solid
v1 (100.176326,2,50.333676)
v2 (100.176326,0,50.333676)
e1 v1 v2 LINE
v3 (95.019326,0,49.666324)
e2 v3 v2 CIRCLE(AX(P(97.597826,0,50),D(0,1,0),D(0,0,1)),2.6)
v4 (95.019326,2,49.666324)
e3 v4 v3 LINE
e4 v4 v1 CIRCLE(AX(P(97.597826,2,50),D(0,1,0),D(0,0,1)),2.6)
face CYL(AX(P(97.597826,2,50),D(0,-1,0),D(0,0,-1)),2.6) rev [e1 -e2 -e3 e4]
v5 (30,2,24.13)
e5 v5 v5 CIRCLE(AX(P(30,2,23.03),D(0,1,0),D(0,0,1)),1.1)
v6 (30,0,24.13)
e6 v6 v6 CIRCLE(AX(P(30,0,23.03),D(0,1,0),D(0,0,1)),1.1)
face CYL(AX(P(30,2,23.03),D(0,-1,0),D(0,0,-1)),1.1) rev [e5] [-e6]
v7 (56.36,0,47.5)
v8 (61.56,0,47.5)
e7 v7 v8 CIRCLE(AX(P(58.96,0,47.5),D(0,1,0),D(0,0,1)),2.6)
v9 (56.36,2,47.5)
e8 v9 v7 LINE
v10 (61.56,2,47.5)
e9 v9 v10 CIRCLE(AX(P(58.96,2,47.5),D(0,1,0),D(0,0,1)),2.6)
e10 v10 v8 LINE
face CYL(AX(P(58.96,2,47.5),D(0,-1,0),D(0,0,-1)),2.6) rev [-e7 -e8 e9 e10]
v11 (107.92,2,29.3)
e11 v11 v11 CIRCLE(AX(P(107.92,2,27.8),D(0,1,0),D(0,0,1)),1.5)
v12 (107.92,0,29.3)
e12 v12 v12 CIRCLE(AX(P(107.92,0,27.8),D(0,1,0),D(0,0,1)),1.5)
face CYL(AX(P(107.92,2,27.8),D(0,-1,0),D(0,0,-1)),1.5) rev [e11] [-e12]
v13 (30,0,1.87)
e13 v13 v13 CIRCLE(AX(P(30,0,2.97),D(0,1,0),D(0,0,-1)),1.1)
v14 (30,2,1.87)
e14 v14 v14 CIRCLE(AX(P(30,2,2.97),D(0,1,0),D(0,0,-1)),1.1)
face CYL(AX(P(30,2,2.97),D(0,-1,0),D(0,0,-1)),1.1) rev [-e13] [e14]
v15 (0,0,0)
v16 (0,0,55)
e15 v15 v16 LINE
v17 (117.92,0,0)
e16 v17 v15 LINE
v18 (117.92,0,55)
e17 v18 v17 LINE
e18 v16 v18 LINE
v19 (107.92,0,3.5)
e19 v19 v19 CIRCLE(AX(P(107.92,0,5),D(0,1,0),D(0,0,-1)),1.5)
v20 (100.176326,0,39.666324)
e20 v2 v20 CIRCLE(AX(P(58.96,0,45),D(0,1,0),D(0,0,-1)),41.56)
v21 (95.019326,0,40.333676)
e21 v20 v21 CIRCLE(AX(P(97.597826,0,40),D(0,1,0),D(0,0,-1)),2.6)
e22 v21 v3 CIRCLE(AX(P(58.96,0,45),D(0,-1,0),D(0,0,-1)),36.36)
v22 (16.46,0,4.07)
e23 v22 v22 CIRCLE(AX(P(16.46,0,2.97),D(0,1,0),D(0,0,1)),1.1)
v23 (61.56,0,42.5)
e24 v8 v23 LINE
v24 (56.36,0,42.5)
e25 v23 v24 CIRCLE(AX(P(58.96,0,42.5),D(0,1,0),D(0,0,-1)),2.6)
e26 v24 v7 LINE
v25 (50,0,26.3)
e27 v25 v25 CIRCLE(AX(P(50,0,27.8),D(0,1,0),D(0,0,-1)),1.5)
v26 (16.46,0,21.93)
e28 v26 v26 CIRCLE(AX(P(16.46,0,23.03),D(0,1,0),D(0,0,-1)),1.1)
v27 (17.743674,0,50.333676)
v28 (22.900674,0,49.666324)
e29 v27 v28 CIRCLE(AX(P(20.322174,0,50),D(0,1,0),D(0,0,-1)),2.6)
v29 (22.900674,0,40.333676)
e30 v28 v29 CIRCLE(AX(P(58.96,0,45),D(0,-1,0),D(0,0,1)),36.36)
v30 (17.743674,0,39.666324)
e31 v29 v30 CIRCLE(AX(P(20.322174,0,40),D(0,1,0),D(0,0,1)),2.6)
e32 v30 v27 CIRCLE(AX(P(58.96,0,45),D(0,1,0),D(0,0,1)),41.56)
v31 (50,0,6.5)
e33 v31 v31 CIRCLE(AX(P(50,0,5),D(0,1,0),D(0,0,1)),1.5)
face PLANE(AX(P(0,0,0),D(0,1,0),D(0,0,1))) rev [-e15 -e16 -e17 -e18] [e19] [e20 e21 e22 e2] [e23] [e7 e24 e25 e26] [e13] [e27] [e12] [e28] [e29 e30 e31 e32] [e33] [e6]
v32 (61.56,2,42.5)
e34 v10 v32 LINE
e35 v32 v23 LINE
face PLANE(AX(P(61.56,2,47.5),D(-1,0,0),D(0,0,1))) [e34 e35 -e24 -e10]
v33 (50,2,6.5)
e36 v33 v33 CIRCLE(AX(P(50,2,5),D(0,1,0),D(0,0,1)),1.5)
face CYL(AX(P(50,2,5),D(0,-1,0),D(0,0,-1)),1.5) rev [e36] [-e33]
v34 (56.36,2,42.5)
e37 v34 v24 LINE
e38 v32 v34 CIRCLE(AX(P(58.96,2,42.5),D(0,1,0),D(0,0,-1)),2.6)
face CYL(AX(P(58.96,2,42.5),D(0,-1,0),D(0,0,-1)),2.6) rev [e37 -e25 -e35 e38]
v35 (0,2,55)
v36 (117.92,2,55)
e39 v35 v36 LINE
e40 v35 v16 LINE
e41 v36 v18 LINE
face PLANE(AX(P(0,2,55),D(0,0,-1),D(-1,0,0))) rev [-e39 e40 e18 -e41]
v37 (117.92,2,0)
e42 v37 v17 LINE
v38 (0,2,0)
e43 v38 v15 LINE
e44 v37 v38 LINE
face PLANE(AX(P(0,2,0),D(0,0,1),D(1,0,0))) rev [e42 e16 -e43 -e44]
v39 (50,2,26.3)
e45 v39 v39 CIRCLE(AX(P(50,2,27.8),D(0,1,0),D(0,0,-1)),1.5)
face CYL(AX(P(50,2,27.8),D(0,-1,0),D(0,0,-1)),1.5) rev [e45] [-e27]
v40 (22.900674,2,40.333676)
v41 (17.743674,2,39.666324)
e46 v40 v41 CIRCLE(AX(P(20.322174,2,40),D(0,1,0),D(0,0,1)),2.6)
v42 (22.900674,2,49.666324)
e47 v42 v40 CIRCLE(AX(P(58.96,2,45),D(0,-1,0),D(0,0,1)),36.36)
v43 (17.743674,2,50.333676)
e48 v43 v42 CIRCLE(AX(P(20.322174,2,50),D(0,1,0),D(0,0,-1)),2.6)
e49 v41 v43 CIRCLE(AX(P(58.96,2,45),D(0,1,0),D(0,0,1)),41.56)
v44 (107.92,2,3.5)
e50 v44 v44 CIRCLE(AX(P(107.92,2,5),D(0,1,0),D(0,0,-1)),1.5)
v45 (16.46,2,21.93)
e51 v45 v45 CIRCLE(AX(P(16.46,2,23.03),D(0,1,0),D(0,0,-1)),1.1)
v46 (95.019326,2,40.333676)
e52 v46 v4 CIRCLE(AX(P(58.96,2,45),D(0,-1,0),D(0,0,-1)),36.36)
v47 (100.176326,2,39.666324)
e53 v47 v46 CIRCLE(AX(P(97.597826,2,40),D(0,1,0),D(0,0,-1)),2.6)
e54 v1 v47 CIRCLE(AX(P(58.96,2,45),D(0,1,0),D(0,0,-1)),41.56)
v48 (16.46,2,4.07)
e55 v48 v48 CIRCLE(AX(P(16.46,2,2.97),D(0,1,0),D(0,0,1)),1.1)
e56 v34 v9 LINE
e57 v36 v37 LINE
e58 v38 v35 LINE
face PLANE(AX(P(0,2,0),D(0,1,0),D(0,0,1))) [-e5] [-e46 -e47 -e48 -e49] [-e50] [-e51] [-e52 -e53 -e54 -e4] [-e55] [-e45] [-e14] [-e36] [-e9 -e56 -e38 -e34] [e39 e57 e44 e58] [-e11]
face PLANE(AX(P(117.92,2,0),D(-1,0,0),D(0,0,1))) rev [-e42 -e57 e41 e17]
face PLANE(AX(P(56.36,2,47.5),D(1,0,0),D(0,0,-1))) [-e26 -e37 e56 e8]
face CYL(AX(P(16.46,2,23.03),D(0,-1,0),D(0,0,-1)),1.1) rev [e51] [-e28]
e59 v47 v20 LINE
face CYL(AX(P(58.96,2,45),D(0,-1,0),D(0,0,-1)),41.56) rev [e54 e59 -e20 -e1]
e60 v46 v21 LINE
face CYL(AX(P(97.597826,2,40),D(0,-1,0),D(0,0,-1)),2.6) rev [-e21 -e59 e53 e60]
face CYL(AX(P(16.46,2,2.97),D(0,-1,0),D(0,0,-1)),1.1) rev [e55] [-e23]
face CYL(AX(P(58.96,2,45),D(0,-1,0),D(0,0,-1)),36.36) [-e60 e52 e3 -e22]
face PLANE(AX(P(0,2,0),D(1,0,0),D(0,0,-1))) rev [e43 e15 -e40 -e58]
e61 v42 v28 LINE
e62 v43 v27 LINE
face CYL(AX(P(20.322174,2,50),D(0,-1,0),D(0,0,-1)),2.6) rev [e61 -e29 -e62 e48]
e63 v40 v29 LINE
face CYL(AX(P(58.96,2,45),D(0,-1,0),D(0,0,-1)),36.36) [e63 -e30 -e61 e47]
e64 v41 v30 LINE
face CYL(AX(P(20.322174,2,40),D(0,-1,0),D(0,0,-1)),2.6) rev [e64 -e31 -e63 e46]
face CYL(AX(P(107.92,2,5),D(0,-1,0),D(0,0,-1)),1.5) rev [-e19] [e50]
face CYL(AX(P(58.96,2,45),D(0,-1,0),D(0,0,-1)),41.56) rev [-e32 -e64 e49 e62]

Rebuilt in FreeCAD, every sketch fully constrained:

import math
import FreeCAD as App
import Part
import Sketcher
from FreeCAD import Vector
Q = App.Units.Quantity


def add_polygon(sketch, points):
    """Adds a closed chain of lines whose ends are joined by coincident constraints."""
    first, n = sketch.GeometryCount, len(points)
    for a, b in zip(points, points[1:] + points[:1]):
        sketch.addGeometry(Part.LineSegment(App.Vector(*a, 0), App.Vector(*b, 0)), False)
    for i in range(n):
        sketch.addConstraint(Sketcher.Constraint("Coincident", first + i, 2, first + (i + 1) % n, 1))

doc = App.newDocument("Part")
body = doc.addObject("PartDesign::Body", "Body")

sketch1 = body.newObject("Sketcher::SketchObject", "Sketch")
sketch1.AttachmentSupport = (doc.getObject("XZ_Plane"), [""])
sketch1.MapMode = "FlatFace"
add_polygon(sketch1, [(0, 0), (0, 55), (117.9, 55), (117.9, 0)])
sketch1.addGeometry(Part.ArcOfCircle(Part.Circle(Vector(20.3, 40, 0), Vector(0, 0, 1), 2.6), math.radians(-173), math.radians(7)), False)
sketch1.addGeometry(Part.ArcOfCircle(Part.Circle(Vector(59, 45, 0), Vector(0, 0, 1), 36.4), math.radians(172.63), math.radians(187.37)), False)
sketch1.addGeometry(Part.ArcOfCircle(Part.Circle(Vector(20.3, 50, 0), Vector(0, 0, 1), 2.6), math.radians(-7), math.radians(173)), False)
sketch1.addGeometry(Part.ArcOfCircle(Part.Circle(Vector(59, 45, 0), Vector(0, 0, 1), 41.6), math.radians(172.63), math.radians(187.37)), False)
sketch1.addGeometry(Part.ArcOfCircle(Part.Circle(Vector(59, 47.5, 0), Vector(0, 0, 1), 2.6), math.radians(0), math.radians(180)), False)
sketch1.addGeometry(Part.LineSegment(Vector(56.4, 47.5, 0), Vector(56.4, 42.5, 0)), False)
sketch1.addGeometry(Part.ArcOfCircle(Part.Circle(Vector(59, 42.5, 0), Vector(0, 0, 1), 2.6), math.radians(180), math.radians(360)), False)
sketch1.addGeometry(Part.LineSegment(Vector(61.6, 42.5, 0), Vector(61.6, 47.5, 0)), False)
sketch1.addGeometry(Part.Circle(Vector(50, 27.8, 0), Vector(0, 0, 1), 1.5), False)
sketch1.addGeometry(Part.ArcOfCircle(Part.Circle(Vector(59, 45, 0), Vector(0, 0, 1), 36.4), math.radians(-7.37), math.radians(7.37)), False)
sketch1.addGeometry(Part.ArcOfCircle(Part.Circle(Vector(97.6, 40, 0), Vector(0, 0, 1), 2.6), math.radians(173), math.radians(353)), False)
sketch1.addGeometry(Part.ArcOfCircle(Part.Circle(Vector(59, 45, 0), Vector(0, 0, 1), 41.6), math.radians(-7.37), math.radians(7.37)), False)
sketch1.addGeometry(Part.ArcOfCircle(Part.Circle(Vector(97.6, 50, 0), Vector(0, 0, 1), 2.6), math.radians(7), math.radians(187)), False)
sketch1.addGeometry(Part.Circle(Vector(107.9, 27.8, 0), Vector(0, 0, 1), 1.5), False)
sketch1.addGeometry(Part.Circle(Vector(16.5, 23, 0), Vector(0, 0, 1), 1.1), False)
sketch1.addGeometry(Part.Circle(Vector(30, 23, 0), Vector(0, 0, 1), 1.1), False)
sketch1.addGeometry(Part.Circle(Vector(16.5, 3, 0), Vector(0, 0, 1), 1.1), False)
sketch1.addGeometry(Part.Circle(Vector(30, 3, 0), Vector(0, 0, 1), 1.1), False)
sketch1.addGeometry(Part.Circle(Vector(50, 5, 0), Vector(0, 0, 1), 1.5), False)
sketch1.addGeometry(Part.Circle(Vector(107.9, 5, 0), Vector(0, 0, 1), 1.5), False)
sketch1.addConstraint([
    Sketcher.Constraint("Tangent", 4, 2, 5, 2),
    Sketcher.Constraint("Tangent", 5, 1, 6, 1),
    Sketcher.Constraint("Tangent", 6, 2, 7, 1),
    Sketcher.Constraint("Tangent", 7, 2, 4, 1),
    Sketcher.Constraint("Tangent", 8, 2, 9, 1),
    Sketcher.Constraint("Tangent", 9, 2, 10, 1),
    Sketcher.Constraint("Tangent", 10, 2, 11, 1),
    Sketcher.Constraint("Tangent", 11, 2, 8, 1),
    Sketcher.Constraint("Tangent", 13, 1, 14, 1),
    Sketcher.Constraint("Tangent", 14, 2, 15, 1),
    Sketcher.Constraint("Tangent", 15, 2, 16, 1),
    Sketcher.Constraint("Tangent", 16, 2, 13, 2),
    Sketcher.Constraint("Vertical", 0),
    Sketcher.Constraint("Horizontal", 1),
    Sketcher.Constraint("Vertical", 2),
    Sketcher.Constraint("Horizontal", 3),
    Sketcher.Constraint("Vertical", 9),
    Sketcher.Constraint("Vertical", 11),
    Sketcher.Constraint("Coincident", 3, 2, -1, 1),
    Sketcher.Constraint("Coincident", 7, 3, 5, 3),
    Sketcher.Constraint("Coincident", 13, 3, 5, 3),
    Sketcher.Constraint("Coincident", 15, 3, 5, 3),
    Sketcher.Constraint("Equal", 6, 8),
    Sketcher.Constraint("Equal", 5, 13),
    Sketcher.Constraint("Equal", 10, 14),
    Sketcher.Constraint("Equal", 12, 17),
    Sketcher.Constraint("Equal", 18, 19),
    Sketcher.Constraint("Equal", 19, 20),
    Sketcher.Constraint("Equal", 20, 21),
    Sketcher.Constraint("Equal", 17, 22),
    Sketcher.Constraint("Equal", 22, 23),
    Sketcher.Constraint("Horizontal", 4, 3, 14, 3),
    Sketcher.Constraint("Horizontal", 6, 3, 16, 3),
    Sketcher.Constraint("Horizontal", 12, 3, 17, 3),
    Sketcher.Constraint("Horizontal", 18, 3, 19, 3),
    Sketcher.Constraint("Horizontal", 20, 3, 21, 3),
    Sketcher.Constraint("Horizontal", 22, 3, 23, 3),
    Sketcher.Constraint("Vertical", 4, 3, 6, 3),
    Sketcher.Constraint("Vertical", 7, 3, 8, 3),
    Sketcher.Constraint("Vertical", 18, 3, 20, 3),
    Sketcher.Constraint("Vertical", 19, 3, 21, 3),
    Sketcher.Constraint("Vertical", 12, 3, 22, 3),
    Sketcher.Constraint("Vertical", 17, 3, 23, 3),
    Sketcher.Constraint("Diameter", 12, Q("3 mm")),
    Sketcher.Constraint("Diameter", 18, Q("2.2 mm")),
    Sketcher.Constraint("Radius", 4, Q("2.6 mm")),
    Sketcher.Constraint("DistanceY", 0, 1, 0, 2, Q("55 mm")),
    Sketcher.Constraint("DistanceY", 9, 2, 9, 1, Q("5 mm")),
    Sketcher.Constraint("Radius", 5, Q("36.36 mm")),
    Sketcher.Constraint("DistanceY", -1, 1, 4, 3, Q("40 mm")),
    Sketcher.Constraint("DistanceY", -1, 1, 5, 3, Q("45 mm")),
    Sketcher.Constraint("DistanceX", -1, 1, 12, 3, Q("50 mm")),
    Sketcher.Constraint("DistanceX", -1, 1, 19, 3, Q("30 mm")),
    Sketcher.Constraint("DistanceY", -1, 1, 22, 3, Q("5 mm")),
    Sketcher.Constraint("DistanceX", 17, 3, 1, 2, Q("10 mm")),
    Sketcher.Constraint("DistanceX", 1, 1, 1, 2, Q("117.92 mm")),
    Sketcher.Constraint("DistanceY", -1, 1, 8, 3, Q("47.5 mm")),
    Sketcher.Constraint("DistanceY", -1, 1, 12, 3, Q("27.8 mm")),
    Sketcher.Constraint("DistanceX", 18, 3, 10, 3, Q("42.5 mm")),
    Sketcher.Constraint("DistanceX", -1, 1, 5, 3, Q("58.96 mm")),
    Sketcher.Constraint("DistanceY", -1, 1, 18, 3, Q("23.03 mm")),
    Sketcher.Constraint("DistanceY", -1, 1, 20, 3, Q("2.97 mm")),
])
pad1 = body.newObject("PartDesign::Pad", "Pad")
pad1.Profile = sketch1
pad1.Length = 2
pad1.Reversed = True

doc.recompute()
